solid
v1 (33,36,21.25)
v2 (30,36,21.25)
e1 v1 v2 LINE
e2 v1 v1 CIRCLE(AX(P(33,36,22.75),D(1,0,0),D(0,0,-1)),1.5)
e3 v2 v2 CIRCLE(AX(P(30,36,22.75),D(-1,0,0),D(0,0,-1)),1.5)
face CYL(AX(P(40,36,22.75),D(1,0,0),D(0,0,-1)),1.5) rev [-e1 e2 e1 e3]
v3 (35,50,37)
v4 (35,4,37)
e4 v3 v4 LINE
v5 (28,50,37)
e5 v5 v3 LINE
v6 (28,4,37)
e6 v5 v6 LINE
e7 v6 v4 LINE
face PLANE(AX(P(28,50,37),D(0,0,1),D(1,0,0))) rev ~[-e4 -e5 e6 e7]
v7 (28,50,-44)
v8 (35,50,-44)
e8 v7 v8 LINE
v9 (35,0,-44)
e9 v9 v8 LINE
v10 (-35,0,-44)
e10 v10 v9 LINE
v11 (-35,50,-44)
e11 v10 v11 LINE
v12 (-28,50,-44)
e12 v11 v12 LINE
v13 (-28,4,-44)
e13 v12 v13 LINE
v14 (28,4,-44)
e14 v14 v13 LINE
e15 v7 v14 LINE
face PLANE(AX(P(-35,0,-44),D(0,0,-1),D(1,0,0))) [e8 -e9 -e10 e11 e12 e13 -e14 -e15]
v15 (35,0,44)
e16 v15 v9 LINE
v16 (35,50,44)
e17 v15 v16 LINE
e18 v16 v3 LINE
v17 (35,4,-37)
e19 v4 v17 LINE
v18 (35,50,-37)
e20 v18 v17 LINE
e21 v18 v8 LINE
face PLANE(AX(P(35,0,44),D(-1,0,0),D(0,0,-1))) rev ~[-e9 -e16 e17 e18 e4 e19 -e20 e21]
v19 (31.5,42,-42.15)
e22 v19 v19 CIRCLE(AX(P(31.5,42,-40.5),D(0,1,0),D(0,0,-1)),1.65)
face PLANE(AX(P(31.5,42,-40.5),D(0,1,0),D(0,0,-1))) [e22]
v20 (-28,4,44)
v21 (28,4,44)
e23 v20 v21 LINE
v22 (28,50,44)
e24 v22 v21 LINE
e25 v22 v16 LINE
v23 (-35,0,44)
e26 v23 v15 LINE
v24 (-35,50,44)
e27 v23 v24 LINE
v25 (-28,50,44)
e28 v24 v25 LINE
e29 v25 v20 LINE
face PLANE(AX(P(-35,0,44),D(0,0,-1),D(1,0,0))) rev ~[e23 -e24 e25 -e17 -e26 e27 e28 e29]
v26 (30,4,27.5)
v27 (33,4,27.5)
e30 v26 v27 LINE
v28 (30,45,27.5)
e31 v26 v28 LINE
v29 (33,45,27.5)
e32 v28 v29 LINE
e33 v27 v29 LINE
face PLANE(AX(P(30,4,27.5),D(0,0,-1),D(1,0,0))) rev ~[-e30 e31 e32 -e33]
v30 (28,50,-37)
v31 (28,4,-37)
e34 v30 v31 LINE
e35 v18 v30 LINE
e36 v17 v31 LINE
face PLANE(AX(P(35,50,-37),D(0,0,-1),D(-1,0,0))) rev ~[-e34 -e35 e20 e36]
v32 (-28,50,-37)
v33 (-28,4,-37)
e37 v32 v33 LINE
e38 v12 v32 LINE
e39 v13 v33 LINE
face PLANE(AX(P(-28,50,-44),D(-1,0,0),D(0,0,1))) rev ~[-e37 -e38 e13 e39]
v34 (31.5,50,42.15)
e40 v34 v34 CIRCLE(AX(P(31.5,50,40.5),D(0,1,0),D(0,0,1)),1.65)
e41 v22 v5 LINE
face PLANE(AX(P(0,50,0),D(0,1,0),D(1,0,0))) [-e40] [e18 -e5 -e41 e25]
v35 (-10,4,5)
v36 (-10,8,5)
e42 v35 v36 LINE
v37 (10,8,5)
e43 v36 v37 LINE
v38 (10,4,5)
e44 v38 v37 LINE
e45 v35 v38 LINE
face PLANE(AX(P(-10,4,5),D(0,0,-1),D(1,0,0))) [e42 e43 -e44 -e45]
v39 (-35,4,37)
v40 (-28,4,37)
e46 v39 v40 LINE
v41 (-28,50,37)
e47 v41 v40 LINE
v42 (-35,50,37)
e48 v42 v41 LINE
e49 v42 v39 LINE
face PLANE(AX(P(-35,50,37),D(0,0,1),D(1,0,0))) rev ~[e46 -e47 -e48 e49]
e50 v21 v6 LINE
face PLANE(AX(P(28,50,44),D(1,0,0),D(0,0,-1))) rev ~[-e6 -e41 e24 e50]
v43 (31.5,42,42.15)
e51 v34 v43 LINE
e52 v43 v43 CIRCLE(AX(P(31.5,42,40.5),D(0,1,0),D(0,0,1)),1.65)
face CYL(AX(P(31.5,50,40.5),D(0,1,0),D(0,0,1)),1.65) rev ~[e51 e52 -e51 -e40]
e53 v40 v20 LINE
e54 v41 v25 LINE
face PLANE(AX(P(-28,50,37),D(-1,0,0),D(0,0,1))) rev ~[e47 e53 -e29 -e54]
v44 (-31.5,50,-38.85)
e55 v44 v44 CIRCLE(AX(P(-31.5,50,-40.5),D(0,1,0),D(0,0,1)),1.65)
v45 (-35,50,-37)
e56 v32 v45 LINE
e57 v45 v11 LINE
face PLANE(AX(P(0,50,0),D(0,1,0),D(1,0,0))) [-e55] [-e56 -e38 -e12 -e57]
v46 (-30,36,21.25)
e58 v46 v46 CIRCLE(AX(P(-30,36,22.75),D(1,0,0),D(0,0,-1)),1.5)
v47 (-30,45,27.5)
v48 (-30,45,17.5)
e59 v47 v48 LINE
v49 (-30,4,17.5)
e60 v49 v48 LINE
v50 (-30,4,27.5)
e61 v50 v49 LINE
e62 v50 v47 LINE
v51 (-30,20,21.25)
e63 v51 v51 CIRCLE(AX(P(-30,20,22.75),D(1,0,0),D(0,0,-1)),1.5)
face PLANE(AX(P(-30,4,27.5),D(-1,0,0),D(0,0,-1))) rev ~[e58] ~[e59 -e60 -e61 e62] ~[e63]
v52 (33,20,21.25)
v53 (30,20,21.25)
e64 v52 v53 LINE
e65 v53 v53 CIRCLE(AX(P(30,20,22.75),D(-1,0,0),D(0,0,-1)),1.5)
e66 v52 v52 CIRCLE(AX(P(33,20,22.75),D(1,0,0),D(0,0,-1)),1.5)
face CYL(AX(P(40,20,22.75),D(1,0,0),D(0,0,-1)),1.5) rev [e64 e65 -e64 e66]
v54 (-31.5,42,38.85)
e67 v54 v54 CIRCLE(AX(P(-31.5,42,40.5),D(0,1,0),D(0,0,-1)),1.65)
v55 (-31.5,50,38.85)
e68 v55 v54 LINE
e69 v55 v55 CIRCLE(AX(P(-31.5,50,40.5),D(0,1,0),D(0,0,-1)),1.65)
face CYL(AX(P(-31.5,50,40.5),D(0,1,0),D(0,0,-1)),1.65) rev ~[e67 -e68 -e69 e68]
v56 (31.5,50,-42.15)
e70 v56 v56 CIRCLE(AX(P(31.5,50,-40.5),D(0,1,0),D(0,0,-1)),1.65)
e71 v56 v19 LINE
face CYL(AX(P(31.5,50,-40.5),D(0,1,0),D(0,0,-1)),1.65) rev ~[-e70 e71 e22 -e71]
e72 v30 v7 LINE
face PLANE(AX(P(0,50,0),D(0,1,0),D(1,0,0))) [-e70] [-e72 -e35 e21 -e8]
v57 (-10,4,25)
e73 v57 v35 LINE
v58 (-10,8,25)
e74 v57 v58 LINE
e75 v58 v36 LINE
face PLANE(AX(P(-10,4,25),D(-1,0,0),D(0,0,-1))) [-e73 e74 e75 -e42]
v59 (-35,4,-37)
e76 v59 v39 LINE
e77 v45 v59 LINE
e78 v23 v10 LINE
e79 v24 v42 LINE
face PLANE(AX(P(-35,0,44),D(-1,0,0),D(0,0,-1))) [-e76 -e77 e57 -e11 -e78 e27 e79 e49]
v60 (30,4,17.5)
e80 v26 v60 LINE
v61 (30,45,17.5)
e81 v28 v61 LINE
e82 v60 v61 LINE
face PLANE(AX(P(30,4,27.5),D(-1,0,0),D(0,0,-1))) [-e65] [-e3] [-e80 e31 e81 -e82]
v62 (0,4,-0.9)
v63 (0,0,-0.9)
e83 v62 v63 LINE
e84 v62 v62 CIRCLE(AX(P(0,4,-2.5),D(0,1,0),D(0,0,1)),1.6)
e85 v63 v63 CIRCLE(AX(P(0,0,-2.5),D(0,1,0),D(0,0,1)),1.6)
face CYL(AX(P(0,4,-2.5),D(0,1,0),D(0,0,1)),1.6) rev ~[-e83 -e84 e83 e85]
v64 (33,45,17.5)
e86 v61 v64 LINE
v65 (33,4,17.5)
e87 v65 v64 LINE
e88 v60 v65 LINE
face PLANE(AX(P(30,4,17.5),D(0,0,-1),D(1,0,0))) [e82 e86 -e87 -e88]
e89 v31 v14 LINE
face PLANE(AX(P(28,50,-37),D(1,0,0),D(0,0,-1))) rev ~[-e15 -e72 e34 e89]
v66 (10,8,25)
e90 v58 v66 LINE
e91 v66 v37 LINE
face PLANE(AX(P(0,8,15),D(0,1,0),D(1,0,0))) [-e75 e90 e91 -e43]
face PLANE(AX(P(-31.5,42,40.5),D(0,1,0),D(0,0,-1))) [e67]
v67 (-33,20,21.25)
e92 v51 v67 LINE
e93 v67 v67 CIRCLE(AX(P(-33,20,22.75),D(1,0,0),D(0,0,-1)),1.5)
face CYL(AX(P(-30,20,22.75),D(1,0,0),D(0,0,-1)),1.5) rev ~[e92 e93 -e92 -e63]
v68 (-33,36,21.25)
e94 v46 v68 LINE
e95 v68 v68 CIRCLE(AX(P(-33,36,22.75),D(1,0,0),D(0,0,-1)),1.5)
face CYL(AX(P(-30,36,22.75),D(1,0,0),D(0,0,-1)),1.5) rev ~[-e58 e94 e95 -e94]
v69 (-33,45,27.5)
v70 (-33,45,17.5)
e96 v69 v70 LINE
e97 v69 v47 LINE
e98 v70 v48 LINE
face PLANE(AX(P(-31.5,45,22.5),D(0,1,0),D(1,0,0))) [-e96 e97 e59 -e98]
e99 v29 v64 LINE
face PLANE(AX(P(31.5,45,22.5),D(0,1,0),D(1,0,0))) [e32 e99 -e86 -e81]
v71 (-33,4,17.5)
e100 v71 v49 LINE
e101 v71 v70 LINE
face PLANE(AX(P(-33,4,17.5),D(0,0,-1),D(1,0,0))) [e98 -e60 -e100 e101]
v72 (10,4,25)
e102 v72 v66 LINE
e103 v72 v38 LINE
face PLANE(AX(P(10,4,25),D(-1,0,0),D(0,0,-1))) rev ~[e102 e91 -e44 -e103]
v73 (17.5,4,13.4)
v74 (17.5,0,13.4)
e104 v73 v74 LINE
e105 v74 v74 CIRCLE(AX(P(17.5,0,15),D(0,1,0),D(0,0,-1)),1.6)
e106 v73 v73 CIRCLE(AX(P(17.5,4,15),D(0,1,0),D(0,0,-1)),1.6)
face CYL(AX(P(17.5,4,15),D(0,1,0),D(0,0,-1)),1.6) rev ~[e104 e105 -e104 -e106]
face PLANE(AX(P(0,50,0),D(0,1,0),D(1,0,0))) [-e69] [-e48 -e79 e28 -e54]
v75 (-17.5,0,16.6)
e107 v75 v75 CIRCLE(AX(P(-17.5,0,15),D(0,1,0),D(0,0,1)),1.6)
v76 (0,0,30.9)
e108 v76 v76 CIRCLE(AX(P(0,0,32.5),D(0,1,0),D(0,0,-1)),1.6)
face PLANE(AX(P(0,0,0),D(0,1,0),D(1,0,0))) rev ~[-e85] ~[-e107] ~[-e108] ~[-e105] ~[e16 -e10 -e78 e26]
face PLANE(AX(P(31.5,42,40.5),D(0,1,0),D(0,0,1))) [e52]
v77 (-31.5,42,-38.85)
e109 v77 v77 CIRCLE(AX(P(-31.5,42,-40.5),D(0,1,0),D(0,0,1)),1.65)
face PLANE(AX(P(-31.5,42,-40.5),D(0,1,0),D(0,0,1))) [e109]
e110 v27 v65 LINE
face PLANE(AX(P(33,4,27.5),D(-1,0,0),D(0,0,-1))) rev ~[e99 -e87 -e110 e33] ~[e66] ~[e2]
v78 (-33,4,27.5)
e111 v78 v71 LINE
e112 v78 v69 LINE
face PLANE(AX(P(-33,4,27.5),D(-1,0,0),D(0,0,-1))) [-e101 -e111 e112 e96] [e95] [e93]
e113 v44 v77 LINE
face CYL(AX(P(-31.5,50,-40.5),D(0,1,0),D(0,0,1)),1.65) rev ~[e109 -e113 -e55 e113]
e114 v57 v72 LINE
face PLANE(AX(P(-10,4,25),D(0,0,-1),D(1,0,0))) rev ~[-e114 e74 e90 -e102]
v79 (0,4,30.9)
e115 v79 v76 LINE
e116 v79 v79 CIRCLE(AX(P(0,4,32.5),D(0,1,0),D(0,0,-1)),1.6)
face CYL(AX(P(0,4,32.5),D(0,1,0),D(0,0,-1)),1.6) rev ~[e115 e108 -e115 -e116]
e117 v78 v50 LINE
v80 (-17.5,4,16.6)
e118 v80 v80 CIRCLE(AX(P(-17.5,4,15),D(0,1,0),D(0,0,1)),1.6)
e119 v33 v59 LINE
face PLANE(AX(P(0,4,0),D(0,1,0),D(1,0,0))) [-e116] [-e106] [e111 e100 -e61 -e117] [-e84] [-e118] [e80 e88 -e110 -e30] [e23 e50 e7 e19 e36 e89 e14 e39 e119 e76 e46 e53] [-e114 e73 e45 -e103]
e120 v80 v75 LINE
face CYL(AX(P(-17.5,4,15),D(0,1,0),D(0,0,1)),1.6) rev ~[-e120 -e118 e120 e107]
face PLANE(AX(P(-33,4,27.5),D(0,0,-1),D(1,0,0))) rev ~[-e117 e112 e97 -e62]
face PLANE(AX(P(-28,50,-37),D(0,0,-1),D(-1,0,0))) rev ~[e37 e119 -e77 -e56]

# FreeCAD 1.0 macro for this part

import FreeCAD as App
import Part
import Sketcher
from FreeCAD import Vector
Q = App.Units.Quantity

doc = App.newDocument("Part")
body = doc.addObject("PartDesign::Body", "Body")

# Sketch on XZ plane
sketch1 = body.newObject("Sketcher::SketchObject", "Sketch")
sketch1.AttachmentSupport = (doc.getObject("XZ_Plane"), [""])
sketch1.MapMode = "FlatFace"
sketch1.addGeometry(Part.LineSegment(Vector(-35, -44, 0), Vector(-35, 44, 0)), False)
sketch1.addGeometry(Part.LineSegment(Vector(-35, 44, 0), Vector(35, 44, 0)), False)
sketch1.addGeometry(Part.LineSegment(Vector(35, 44, 0), Vector(35, -44, 0)), False)
sketch1.addGeometry(Part.LineSegment(Vector(35, -44, 0), Vector(-35, -44, 0)), False)
sketch1.addConstraint(Sketcher.Constraint("Coincident", 0, 2, 1, 1))
sketch1.addConstraint(Sketcher.Constraint("Coincident", 1, 2, 2, 1))
sketch1.addConstraint(Sketcher.Constraint("Coincident", 2, 2, 3, 1))
sketch1.addConstraint(Sketcher.Constraint("Coincident", 3, 2, 0, 1))
sketch1.addConstraint(Sketcher.Constraint("Vertical", 0))
sketch1.addConstraint(Sketcher.Constraint("Horizontal", 1))
sketch1.addConstraint(Sketcher.Constraint("Vertical", 2))
sketch1.addConstraint(Sketcher.Constraint("Horizontal", 3))
sketch1.addConstraint(Sketcher.Constraint("Symmetric", 0, 2, 2, 2, -1, 1))
sketch1.addConstraint(Sketcher.Constraint("DistanceX", 1, 1, 1, 2, Q("70 mm")))
sketch1.addConstraint(Sketcher.Constraint("DistanceY", 0, 1, 0, 2, Q("88 mm")))
pad1 = body.newObject("PartDesign::Pad", "Pad")
pad1.Profile = sketch1
pad1.Length = 50
pad1.Reversed = True

# Sketch on XZ plane
sketch2 = body.newObject("Sketcher::SketchObject", "Sketch001")
sketch2.AttachmentSupport = (doc.getObject("XZ_Plane"), [""])
sketch2.MapMode = "FlatFace"
sketch2.AttachmentOffset = App.Placement(Vector(0, 0, -50), App.Rotation())
sketch2.addGeometry(Part.Circle(Vector(-31.5, -40.5, 0), Vector(0, 0, 1), 1.6), False)
sketch2.addGeometry(Part.Circle(Vector(31.5, -40.5, 0), Vector(0, 0, 1), 1.6), False)
sketch2.addGeometry(Part.Circle(Vector(31.5, 40.5, 0), Vector(0, 0, 1), 1.6), False)
sketch2.addGeometry(Part.Circle(Vector(-31.5, 40.5, 0), Vector(0, 0, 1), 1.6), False)
sketch2.addConstraint(Sketcher.Constraint("Equal", 0, 1))
sketch2.addConstraint(Sketcher.Constraint("Equal", 1, 2))
sketch2.addConstraint(Sketcher.Constraint("Equal", 2, 3))
sketch2.addConstraint(Sketcher.Constraint("Symmetric", 0, 3, 2, 3, -1, 1))
sketch2.addConstraint(Sketcher.Constraint("Symmetric", 1, 3, 3, 3, -1, 1))
sketch2.addConstraint(Sketcher.Constraint("Symmetric", 0, 3, 1, 3, -2))
sketch2.addConstraint(Sketcher.Constraint("Diameter", 0, Q("3.3 mm")))
sketch2.addConstraint(Sketcher.Constraint("DistanceX", 0, 3, 1, 3, Q("63 mm")))
sketch2.addConstraint(Sketcher.Constraint("DistanceY", 1, 3, 2, 3, Q("81 mm")))
pocket1 = body.newObject("PartDesign::Pocket", "Pocket")
pocket1.Profile = sketch2
pocket1.Length = 8
pocket1.Reversed = True

# Sketch on XZ plane
sketch3 = body.newObject("Sketcher::SketchObject", "Sketch002")
sketch3.AttachmentSupport = (doc.getObject("XZ_Plane"), [""])
sketch3.MapMode = "FlatFace"
sketch3.AttachmentOffset = App.Placement(Vector(0, 0, -50), App.Rotation())
sketch3.addGeometry(Part.LineSegment(Vector(-28, 44, 0), Vector(28, 44, 0)), False)
sketch3.addGeometry(Part.LineSegment(Vector(28, 44, 0), Vector(28, 37, 0)), False)
sketch3.addGeometry(Part.LineSegment(Vector(28, 37, 0), Vector(35, 37, 0)), False)
sketch3.addGeometry(Part.LineSegment(Vector(35, 37, 0), Vector(35, -37, 0)), False)
sketch3.addGeometry(Part.LineSegment(Vector(35, -37, 0), Vector(28, -37, 0)), False)
sketch3.addGeometry(Part.LineSegment(Vector(28, -37, 0), Vector(28, -44, 0)), False)
sketch3.addGeometry(Part.LineSegment(Vector(28, -44, 0), Vector(-28, -44, 0)), False)
sketch3.addGeometry(Part.LineSegment(Vector(-28, -44, 0), Vector(-28, -37, 0)), False)
sketch3.addGeometry(Part.LineSegment(Vector(-28, -37, 0), Vector(-35, -37, 0)), False)
sketch3.addGeometry(Part.LineSegment(Vector(-35, -37, 0), Vector(-35, 37, 0)), False)
sketch3.addGeometry(Part.LineSegment(Vector(-35, 37, 0), Vector(-28, 37, 0)), False)
sketch3.addGeometry(Part.LineSegment(Vector(-28, 37, 0), Vector(-28, 44, 0)), False)
sketch3.addConstraint(Sketcher.Constraint("Coincident", 0, 2, 1, 1))
sketch3.addConstraint(Sketcher.Constraint("Coincident", 1, 2, 2, 1))
sketch3.addConstraint(Sketcher.Constraint("Coincident", 2, 2, 3, 1))
sketch3.addConstraint(Sketcher.Constraint("Coincident", 3, 2, 4, 1))
sketch3.addConstraint(Sketcher.Constraint("Coincident", 4, 2, 5, 1))
sketch3.addConstraint(Sketcher.Constraint("Coincident", 5, 2, 6, 1))
sketch3.addConstraint(Sketcher.Constraint("Coincident", 6, 2, 7, 1))
sketch3.addConstraint(Sketcher.Constraint("Coincident", 7, 2, 8, 1))
sketch3.addConstraint(Sketcher.Constraint("Coincident", 8, 2, 9, 1))
sketch3.addConstraint(Sketcher.Constraint("Coincident", 9, 2, 10, 1))
sketch3.addConstraint(Sketcher.Constraint("Coincident", 10, 2, 11, 1))
sketch3.addConstraint(Sketcher.Constraint("Coincident", 11, 2, 0, 1))
sketch3.addConstraint(Sketcher.Constraint("Horizontal", 0))
sketch3.addConstraint(Sketcher.Constraint("Vertical", 1))
sketch3.addConstraint(Sketcher.Constraint("Horizontal", 2))
sketch3.addConstraint(Sketcher.Constraint("Vertical", 3))
sketch3.addConstraint(Sketcher.Constraint("Horizontal", 4))
sketch3.addConstraint(Sketcher.Constraint("Vertical", 5))
sketch3.addConstraint(Sketcher.Constraint("Horizontal", 6))
sketch3.addConstraint(Sketcher.Constraint("Vertical", 7))
sketch3.addConstraint(Sketcher.Constraint("Horizontal", 8))
sketch3.addConstraint(Sketcher.Constraint("Vertical", 9))
sketch3.addConstraint(Sketcher.Constraint("Horizontal", 10))
sketch3.addConstraint(Sketcher.Constraint("Vertical", 11))
sketch3.addConstraint(Sketcher.Constraint("Symmetric", 0, 2, 6, 2, -1, 1))
sketch3.addConstraint(Sketcher.Constraint("Symmetric", 2, 2, 8, 2, -1, 1))
sketch3.addConstraint(Sketcher.Constraint("Symmetric", 4, 2, 10, 2, -1, 1))
sketch3.addConstraint(Sketcher.Constraint("Symmetric", 4, 2, 7, 2, -2))
sketch3.addConstraint(Sketcher.Constraint("Equal", 10, 1))
sketch3.addConstraint(Sketcher.Constraint("DistanceX", 0, 1, 0, 2, Q("56 mm")))
sketch3.addConstraint(Sketcher.Constraint("DistanceX", 2, 1, 2, 2, Q("7 mm")))
sketch3.addConstraint(Sketcher.Constraint("DistanceY", 3, 2, 3, 1, Q("74 mm")))
pocket2 = body.newObject("PartDesign::Pocket", "Pocket001")
pocket2.Profile = sketch3
pocket2.Length = 46
pocket2.Reversed = True

# Sketch on XZ plane
sketch4 = body.newObject("Sketcher::SketchObject", "Sketch003")
sketch4.AttachmentSupport = (doc.getObject("XZ_Plane"), [""])
sketch4.MapMode = "FlatFace"
sketch4.AttachmentOffset = App.Placement(Vector(0, 0, -4), App.Rotation())
sketch4.addGeometry(Part.Circle(Vector(-17.5, 15, 0), Vector(0, 0, 1), 1.6), False)
sketch4.addGeometry(Part.Circle(Vector(0, -2.5, 0), Vector(0, 0, 1), 1.6), False)
sketch4.addGeometry(Part.Circle(Vector(0, 32.5, 0), Vector(0, 0, 1), 1.6), False)
sketch4.addGeometry(Part.Circle(Vector(17.5, 15, 0), Vector(0, 0, 1), 1.6), False)
sketch4.addConstraint(Sketcher.Constraint("Equal", 0, 1))
sketch4.addConstraint(Sketcher.Constraint("Equal", 1, 2))
sketch4.addConstraint(Sketcher.Constraint("Equal", 2, 3))
sketch4.addConstraint(Sketcher.Constraint("Symmetric", 0, 3, 3, 3, -2))
sketch4.addConstraint(Sketcher.Constraint("PointOnObject", 1, 3, -2))
sketch4.addConstraint(Sketcher.Constraint("PointOnObject", 2, 3, -2))
sketch4.addConstraint(Sketcher.Constraint("Diameter", 0, Q("3.2 mm")))
sketch4.addConstraint(Sketcher.Constraint("DistanceY", -1, 1, 0, 3, Q("15 mm")))
sketch4.addConstraint(Sketcher.Constraint("DistanceY", 1, 3, 2, 3, Q("35 mm")))
sketch4.addConstraint(Sketcher.Constraint("DistanceX", 0, 3, 3, 3, Q("35 mm")))
sketch4.addConstraint(Sketcher.Constraint("DistanceY", 1, 3, -1, 1, Q("2.5 mm")))
pocket3 = body.newObject("PartDesign::Pocket", "Pocket002")
pocket3.Profile = sketch4
pocket3.Type = "ThroughAll"
pocket3.Reversed = True

# Sketch on XZ plane
sketch5 = body.newObject("Sketcher::SketchObject", "Sketch004")
sketch5.AttachmentSupport = (doc.getObject("XZ_Plane"), [""])
sketch5.MapMode = "FlatFace"
sketch5.AttachmentOffset = App.Placement(Vector(0, 0, -4), App.Rotation())
sketch5.addGeometry(Part.LineSegment(Vector(-10, 5, 0), Vector(-10, 25, 0)), False)
sketch5.addGeometry(Part.LineSegment(Vector(-10, 25, 0), Vector(10, 25, 0)), False)
sketch5.addGeometry(Part.LineSegment(Vector(10, 25, 0), Vector(10, 5, 0)), False)
sketch5.addGeometry(Part.LineSegment(Vector(10, 5, 0), Vector(-10, 5, 0)), False)
sketch5.addConstraint(Sketcher.Constraint("Coincident", 0, 2, 1, 1))
sketch5.addConstraint(Sketcher.Constraint("Coincident", 1, 2, 2, 1))
sketch5.addConstraint(Sketcher.Constraint("Coincident", 2, 2, 3, 1))
sketch5.addConstraint(Sketcher.Constraint("Coincident", 3, 2, 0, 1))
sketch5.addConstraint(Sketcher.Constraint("Vertical", 0))
sketch5.addConstraint(Sketcher.Constraint("Horizontal", 1))
sketch5.addConstraint(Sketcher.Constraint("Vertical", 2))
sketch5.addConstraint(Sketcher.Constraint("Horizontal", 3))
sketch5.addConstraint(Sketcher.Constraint("Equal", 3, 0))
sketch5.addConstraint(Sketcher.Constraint("DistanceX", 1, 1, 1, 2, Q("20 mm")))
sketch5.addConstraint(Sketcher.Constraint("DistanceX", 0, 2, -1, 1, Q("10 mm")))
sketch5.addConstraint(Sketcher.Constraint("DistanceY", -1, 1, 0, 2, Q("25 mm")))
pad2 = body.newObject("PartDesign::Pad", "Pad001")
pad2.Profile = sketch5
pad2.Length = 4
pad2.Reversed = True

# Sketch on XZ plane
sketch6 = body.newObject("Sketcher::SketchObject", "Sketch005")
sketch6.AttachmentSupport = (doc.getObject("XZ_Plane"), [""])
sketch6.MapMode = "FlatFace"
sketch6.AttachmentOffset = App.Placement(Vector(0, 0, -4), App.Rotation())
sketch6.addGeometry(Part.LineSegment(Vector(-33, 17.5, 0), Vector(-33, 27.5, 0)), False)
sketch6.addGeometry(Part.LineSegment(Vector(-33, 27.5, 0), Vector(-30, 27.5, 0)), False)
sketch6.addGeometry(Part.LineSegment(Vector(-30, 27.5, 0), Vector(-30, 17.5, 0)), False)
sketch6.addGeometry(Part.LineSegment(Vector(-30, 17.5, 0), Vector(-33, 17.5, 0)), False)
sketch6.addGeometry(Part.LineSegment(Vector(30, 17.5, 0), Vector(30, 27.5, 0)), False)
sketch6.addGeometry(Part.LineSegment(Vector(30, 27.5, 0), Vector(33, 27.5, 0)), False)
sketch6.addGeometry(Part.LineSegment(Vector(33, 27.5, 0), Vector(33, 17.5, 0)), False)
sketch6.addGeometry(Part.LineSegment(Vector(33, 17.5, 0), Vector(30, 17.5, 0)), False)
sketch6.addConstraint(Sketcher.Constraint("Coincident", 0, 2, 1, 1))
sketch6.addConstraint(Sketcher.Constraint("Coincident", 1, 2, 2, 1))
sketch6.addConstraint(Sketcher.Constraint("Coincident", 2, 2, 3, 1))
sketch6.addConstraint(Sketcher.Constraint("Coincident", 3, 2, 0, 1))
sketch6.addConstraint(Sketcher.Constraint("Coincident", 4, 2, 5, 1))
sketch6.addConstraint(Sketcher.Constraint("Coincident", 5, 2, 6, 1))
sketch6.addConstraint(Sketcher.Constraint("Coincident", 6, 2, 7, 1))
sketch6.addConstraint(Sketcher.Constraint("Coincident", 7, 2, 4, 1))
sketch6.addConstraint(Sketcher.Constraint("Vertical", 0))
sketch6.addConstraint(Sketcher.Constraint("Horizontal", 1))
sketch6.addConstraint(Sketcher.Constraint("Vertical", 2))
sketch6.addConstraint(Sketcher.Constraint("Horizontal", 3))
sketch6.addConstraint(Sketcher.Constraint("Vertical", 4))
sketch6.addConstraint(Sketcher.Constraint("Horizontal", 5))
sketch6.addConstraint(Sketcher.Constraint("Vertical", 6))
sketch6.addConstraint(Sketcher.Constraint("Horizontal", 7))
sketch6.addConstraint(Sketcher.Constraint("Symmetric", 1, 2, 4, 2, -2))
sketch6.addConstraint(Sketcher.Constraint("Symmetric", 3, 2, 6, 2, -2))
sketch6.addConstraint(Sketcher.Constraint("DistanceX", 1, 1, 1, 2, Q("3 mm")))
sketch6.addConstraint(Sketcher.Constraint("DistanceY", 0, 1, 0, 2, Q("10 mm")))
sketch6.addConstraint(Sketcher.Constraint("DistanceX", 0, 2, -1, 1, Q("33 mm")))
sketch6.addConstraint(Sketcher.Constraint("DistanceY", -1, 1, 0, 2, Q("27.5 mm")))
pad3 = body.newObject("PartDesign::Pad", "Pad002")
pad3.Profile = sketch6
pad3.Length = 41
pad3.Reversed = True

# Sketch on YZ plane
sketch7 = body.newObject("Sketcher::SketchObject", "Sketch006")
sketch7.AttachmentSupport = (doc.getObject("YZ_Plane"), [""])
sketch7.MapMode = "FlatFace"
sketch7.AttachmentOffset = App.Placement(Vector(0, 0, -30), App.Rotation())
sketch7.addGeometry(Part.Circle(Vector(20, 22.8, 0), Vector(0, 0, 1), 1.5), False)
sketch7.addGeometry(Part.Circle(Vector(36, 22.8, 0), Vector(0, 0, 1), 1.5), False)
sketch7.addConstraint(Sketcher.Constraint("Equal", 0, 1))
sketch7.addConstraint(Sketcher.Constraint("Horizontal", 0, 3, 1, 3))
sketch7.addConstraint(Sketcher.Constraint("Diameter", 0, Q("3 mm")))
sketch7.addConstraint(Sketcher.Constraint("DistanceX", -1, 1, 0, 3, Q("20 mm")))
sketch7.addConstraint(Sketcher.Constraint("DistanceX", -1, 1, 1, 3, Q("36 mm")))
sketch7.addConstraint(Sketcher.Constraint("DistanceY", -1, 1, 0, 3, Q("22.75 mm")))
pocket4 = body.newObject("PartDesign::Pocket", "Pocket003")
pocket4.Profile = sketch7
pocket4.Length = 10

# Sketch on YZ plane
sketch8 = body.newObject("Sketcher::SketchObject", "Sketch007")
sketch8.AttachmentSupport = (doc.getObject("YZ_Plane"), [""])
sketch8.MapMode = "FlatFace"
sketch8.AttachmentOffset = App.Placement(Vector(0, 0, 40), App.Rotation())
sketch8.addGeometry(Part.Circle(Vector(20, 22.8, 0), Vector(0, 0, 1), 1.5), False)
sketch8.addGeometry(Part.Circle(Vector(36, 22.8, 0), Vector(0, 0, 1), 1.5), False)
sketch8.addConstraint(Sketcher.Constraint("Equal", 0, 1))
sketch8.addConstraint(Sketcher.Constraint("Horizontal", 0, 3, 1, 3))
sketch8.addConstraint(Sketcher.Constraint("Diameter", 0, Q("3 mm")))
sketch8.addConstraint(Sketcher.Constraint("DistanceX", -1, 1, 0, 3, Q("20 mm")))
sketch8.addConstraint(Sketcher.Constraint("DistanceX", -1, 1, 1, 3, Q("36 mm")))
sketch8.addConstraint(Sketcher.Constraint("DistanceY", -1, 1, 0, 3, Q("22.75 mm")))
pocket5 = body.newObject("PartDesign::Pocket", "Pocket004")
pocket5.Profile = sketch8
pocket5.Length = 10

doc.recompute()
